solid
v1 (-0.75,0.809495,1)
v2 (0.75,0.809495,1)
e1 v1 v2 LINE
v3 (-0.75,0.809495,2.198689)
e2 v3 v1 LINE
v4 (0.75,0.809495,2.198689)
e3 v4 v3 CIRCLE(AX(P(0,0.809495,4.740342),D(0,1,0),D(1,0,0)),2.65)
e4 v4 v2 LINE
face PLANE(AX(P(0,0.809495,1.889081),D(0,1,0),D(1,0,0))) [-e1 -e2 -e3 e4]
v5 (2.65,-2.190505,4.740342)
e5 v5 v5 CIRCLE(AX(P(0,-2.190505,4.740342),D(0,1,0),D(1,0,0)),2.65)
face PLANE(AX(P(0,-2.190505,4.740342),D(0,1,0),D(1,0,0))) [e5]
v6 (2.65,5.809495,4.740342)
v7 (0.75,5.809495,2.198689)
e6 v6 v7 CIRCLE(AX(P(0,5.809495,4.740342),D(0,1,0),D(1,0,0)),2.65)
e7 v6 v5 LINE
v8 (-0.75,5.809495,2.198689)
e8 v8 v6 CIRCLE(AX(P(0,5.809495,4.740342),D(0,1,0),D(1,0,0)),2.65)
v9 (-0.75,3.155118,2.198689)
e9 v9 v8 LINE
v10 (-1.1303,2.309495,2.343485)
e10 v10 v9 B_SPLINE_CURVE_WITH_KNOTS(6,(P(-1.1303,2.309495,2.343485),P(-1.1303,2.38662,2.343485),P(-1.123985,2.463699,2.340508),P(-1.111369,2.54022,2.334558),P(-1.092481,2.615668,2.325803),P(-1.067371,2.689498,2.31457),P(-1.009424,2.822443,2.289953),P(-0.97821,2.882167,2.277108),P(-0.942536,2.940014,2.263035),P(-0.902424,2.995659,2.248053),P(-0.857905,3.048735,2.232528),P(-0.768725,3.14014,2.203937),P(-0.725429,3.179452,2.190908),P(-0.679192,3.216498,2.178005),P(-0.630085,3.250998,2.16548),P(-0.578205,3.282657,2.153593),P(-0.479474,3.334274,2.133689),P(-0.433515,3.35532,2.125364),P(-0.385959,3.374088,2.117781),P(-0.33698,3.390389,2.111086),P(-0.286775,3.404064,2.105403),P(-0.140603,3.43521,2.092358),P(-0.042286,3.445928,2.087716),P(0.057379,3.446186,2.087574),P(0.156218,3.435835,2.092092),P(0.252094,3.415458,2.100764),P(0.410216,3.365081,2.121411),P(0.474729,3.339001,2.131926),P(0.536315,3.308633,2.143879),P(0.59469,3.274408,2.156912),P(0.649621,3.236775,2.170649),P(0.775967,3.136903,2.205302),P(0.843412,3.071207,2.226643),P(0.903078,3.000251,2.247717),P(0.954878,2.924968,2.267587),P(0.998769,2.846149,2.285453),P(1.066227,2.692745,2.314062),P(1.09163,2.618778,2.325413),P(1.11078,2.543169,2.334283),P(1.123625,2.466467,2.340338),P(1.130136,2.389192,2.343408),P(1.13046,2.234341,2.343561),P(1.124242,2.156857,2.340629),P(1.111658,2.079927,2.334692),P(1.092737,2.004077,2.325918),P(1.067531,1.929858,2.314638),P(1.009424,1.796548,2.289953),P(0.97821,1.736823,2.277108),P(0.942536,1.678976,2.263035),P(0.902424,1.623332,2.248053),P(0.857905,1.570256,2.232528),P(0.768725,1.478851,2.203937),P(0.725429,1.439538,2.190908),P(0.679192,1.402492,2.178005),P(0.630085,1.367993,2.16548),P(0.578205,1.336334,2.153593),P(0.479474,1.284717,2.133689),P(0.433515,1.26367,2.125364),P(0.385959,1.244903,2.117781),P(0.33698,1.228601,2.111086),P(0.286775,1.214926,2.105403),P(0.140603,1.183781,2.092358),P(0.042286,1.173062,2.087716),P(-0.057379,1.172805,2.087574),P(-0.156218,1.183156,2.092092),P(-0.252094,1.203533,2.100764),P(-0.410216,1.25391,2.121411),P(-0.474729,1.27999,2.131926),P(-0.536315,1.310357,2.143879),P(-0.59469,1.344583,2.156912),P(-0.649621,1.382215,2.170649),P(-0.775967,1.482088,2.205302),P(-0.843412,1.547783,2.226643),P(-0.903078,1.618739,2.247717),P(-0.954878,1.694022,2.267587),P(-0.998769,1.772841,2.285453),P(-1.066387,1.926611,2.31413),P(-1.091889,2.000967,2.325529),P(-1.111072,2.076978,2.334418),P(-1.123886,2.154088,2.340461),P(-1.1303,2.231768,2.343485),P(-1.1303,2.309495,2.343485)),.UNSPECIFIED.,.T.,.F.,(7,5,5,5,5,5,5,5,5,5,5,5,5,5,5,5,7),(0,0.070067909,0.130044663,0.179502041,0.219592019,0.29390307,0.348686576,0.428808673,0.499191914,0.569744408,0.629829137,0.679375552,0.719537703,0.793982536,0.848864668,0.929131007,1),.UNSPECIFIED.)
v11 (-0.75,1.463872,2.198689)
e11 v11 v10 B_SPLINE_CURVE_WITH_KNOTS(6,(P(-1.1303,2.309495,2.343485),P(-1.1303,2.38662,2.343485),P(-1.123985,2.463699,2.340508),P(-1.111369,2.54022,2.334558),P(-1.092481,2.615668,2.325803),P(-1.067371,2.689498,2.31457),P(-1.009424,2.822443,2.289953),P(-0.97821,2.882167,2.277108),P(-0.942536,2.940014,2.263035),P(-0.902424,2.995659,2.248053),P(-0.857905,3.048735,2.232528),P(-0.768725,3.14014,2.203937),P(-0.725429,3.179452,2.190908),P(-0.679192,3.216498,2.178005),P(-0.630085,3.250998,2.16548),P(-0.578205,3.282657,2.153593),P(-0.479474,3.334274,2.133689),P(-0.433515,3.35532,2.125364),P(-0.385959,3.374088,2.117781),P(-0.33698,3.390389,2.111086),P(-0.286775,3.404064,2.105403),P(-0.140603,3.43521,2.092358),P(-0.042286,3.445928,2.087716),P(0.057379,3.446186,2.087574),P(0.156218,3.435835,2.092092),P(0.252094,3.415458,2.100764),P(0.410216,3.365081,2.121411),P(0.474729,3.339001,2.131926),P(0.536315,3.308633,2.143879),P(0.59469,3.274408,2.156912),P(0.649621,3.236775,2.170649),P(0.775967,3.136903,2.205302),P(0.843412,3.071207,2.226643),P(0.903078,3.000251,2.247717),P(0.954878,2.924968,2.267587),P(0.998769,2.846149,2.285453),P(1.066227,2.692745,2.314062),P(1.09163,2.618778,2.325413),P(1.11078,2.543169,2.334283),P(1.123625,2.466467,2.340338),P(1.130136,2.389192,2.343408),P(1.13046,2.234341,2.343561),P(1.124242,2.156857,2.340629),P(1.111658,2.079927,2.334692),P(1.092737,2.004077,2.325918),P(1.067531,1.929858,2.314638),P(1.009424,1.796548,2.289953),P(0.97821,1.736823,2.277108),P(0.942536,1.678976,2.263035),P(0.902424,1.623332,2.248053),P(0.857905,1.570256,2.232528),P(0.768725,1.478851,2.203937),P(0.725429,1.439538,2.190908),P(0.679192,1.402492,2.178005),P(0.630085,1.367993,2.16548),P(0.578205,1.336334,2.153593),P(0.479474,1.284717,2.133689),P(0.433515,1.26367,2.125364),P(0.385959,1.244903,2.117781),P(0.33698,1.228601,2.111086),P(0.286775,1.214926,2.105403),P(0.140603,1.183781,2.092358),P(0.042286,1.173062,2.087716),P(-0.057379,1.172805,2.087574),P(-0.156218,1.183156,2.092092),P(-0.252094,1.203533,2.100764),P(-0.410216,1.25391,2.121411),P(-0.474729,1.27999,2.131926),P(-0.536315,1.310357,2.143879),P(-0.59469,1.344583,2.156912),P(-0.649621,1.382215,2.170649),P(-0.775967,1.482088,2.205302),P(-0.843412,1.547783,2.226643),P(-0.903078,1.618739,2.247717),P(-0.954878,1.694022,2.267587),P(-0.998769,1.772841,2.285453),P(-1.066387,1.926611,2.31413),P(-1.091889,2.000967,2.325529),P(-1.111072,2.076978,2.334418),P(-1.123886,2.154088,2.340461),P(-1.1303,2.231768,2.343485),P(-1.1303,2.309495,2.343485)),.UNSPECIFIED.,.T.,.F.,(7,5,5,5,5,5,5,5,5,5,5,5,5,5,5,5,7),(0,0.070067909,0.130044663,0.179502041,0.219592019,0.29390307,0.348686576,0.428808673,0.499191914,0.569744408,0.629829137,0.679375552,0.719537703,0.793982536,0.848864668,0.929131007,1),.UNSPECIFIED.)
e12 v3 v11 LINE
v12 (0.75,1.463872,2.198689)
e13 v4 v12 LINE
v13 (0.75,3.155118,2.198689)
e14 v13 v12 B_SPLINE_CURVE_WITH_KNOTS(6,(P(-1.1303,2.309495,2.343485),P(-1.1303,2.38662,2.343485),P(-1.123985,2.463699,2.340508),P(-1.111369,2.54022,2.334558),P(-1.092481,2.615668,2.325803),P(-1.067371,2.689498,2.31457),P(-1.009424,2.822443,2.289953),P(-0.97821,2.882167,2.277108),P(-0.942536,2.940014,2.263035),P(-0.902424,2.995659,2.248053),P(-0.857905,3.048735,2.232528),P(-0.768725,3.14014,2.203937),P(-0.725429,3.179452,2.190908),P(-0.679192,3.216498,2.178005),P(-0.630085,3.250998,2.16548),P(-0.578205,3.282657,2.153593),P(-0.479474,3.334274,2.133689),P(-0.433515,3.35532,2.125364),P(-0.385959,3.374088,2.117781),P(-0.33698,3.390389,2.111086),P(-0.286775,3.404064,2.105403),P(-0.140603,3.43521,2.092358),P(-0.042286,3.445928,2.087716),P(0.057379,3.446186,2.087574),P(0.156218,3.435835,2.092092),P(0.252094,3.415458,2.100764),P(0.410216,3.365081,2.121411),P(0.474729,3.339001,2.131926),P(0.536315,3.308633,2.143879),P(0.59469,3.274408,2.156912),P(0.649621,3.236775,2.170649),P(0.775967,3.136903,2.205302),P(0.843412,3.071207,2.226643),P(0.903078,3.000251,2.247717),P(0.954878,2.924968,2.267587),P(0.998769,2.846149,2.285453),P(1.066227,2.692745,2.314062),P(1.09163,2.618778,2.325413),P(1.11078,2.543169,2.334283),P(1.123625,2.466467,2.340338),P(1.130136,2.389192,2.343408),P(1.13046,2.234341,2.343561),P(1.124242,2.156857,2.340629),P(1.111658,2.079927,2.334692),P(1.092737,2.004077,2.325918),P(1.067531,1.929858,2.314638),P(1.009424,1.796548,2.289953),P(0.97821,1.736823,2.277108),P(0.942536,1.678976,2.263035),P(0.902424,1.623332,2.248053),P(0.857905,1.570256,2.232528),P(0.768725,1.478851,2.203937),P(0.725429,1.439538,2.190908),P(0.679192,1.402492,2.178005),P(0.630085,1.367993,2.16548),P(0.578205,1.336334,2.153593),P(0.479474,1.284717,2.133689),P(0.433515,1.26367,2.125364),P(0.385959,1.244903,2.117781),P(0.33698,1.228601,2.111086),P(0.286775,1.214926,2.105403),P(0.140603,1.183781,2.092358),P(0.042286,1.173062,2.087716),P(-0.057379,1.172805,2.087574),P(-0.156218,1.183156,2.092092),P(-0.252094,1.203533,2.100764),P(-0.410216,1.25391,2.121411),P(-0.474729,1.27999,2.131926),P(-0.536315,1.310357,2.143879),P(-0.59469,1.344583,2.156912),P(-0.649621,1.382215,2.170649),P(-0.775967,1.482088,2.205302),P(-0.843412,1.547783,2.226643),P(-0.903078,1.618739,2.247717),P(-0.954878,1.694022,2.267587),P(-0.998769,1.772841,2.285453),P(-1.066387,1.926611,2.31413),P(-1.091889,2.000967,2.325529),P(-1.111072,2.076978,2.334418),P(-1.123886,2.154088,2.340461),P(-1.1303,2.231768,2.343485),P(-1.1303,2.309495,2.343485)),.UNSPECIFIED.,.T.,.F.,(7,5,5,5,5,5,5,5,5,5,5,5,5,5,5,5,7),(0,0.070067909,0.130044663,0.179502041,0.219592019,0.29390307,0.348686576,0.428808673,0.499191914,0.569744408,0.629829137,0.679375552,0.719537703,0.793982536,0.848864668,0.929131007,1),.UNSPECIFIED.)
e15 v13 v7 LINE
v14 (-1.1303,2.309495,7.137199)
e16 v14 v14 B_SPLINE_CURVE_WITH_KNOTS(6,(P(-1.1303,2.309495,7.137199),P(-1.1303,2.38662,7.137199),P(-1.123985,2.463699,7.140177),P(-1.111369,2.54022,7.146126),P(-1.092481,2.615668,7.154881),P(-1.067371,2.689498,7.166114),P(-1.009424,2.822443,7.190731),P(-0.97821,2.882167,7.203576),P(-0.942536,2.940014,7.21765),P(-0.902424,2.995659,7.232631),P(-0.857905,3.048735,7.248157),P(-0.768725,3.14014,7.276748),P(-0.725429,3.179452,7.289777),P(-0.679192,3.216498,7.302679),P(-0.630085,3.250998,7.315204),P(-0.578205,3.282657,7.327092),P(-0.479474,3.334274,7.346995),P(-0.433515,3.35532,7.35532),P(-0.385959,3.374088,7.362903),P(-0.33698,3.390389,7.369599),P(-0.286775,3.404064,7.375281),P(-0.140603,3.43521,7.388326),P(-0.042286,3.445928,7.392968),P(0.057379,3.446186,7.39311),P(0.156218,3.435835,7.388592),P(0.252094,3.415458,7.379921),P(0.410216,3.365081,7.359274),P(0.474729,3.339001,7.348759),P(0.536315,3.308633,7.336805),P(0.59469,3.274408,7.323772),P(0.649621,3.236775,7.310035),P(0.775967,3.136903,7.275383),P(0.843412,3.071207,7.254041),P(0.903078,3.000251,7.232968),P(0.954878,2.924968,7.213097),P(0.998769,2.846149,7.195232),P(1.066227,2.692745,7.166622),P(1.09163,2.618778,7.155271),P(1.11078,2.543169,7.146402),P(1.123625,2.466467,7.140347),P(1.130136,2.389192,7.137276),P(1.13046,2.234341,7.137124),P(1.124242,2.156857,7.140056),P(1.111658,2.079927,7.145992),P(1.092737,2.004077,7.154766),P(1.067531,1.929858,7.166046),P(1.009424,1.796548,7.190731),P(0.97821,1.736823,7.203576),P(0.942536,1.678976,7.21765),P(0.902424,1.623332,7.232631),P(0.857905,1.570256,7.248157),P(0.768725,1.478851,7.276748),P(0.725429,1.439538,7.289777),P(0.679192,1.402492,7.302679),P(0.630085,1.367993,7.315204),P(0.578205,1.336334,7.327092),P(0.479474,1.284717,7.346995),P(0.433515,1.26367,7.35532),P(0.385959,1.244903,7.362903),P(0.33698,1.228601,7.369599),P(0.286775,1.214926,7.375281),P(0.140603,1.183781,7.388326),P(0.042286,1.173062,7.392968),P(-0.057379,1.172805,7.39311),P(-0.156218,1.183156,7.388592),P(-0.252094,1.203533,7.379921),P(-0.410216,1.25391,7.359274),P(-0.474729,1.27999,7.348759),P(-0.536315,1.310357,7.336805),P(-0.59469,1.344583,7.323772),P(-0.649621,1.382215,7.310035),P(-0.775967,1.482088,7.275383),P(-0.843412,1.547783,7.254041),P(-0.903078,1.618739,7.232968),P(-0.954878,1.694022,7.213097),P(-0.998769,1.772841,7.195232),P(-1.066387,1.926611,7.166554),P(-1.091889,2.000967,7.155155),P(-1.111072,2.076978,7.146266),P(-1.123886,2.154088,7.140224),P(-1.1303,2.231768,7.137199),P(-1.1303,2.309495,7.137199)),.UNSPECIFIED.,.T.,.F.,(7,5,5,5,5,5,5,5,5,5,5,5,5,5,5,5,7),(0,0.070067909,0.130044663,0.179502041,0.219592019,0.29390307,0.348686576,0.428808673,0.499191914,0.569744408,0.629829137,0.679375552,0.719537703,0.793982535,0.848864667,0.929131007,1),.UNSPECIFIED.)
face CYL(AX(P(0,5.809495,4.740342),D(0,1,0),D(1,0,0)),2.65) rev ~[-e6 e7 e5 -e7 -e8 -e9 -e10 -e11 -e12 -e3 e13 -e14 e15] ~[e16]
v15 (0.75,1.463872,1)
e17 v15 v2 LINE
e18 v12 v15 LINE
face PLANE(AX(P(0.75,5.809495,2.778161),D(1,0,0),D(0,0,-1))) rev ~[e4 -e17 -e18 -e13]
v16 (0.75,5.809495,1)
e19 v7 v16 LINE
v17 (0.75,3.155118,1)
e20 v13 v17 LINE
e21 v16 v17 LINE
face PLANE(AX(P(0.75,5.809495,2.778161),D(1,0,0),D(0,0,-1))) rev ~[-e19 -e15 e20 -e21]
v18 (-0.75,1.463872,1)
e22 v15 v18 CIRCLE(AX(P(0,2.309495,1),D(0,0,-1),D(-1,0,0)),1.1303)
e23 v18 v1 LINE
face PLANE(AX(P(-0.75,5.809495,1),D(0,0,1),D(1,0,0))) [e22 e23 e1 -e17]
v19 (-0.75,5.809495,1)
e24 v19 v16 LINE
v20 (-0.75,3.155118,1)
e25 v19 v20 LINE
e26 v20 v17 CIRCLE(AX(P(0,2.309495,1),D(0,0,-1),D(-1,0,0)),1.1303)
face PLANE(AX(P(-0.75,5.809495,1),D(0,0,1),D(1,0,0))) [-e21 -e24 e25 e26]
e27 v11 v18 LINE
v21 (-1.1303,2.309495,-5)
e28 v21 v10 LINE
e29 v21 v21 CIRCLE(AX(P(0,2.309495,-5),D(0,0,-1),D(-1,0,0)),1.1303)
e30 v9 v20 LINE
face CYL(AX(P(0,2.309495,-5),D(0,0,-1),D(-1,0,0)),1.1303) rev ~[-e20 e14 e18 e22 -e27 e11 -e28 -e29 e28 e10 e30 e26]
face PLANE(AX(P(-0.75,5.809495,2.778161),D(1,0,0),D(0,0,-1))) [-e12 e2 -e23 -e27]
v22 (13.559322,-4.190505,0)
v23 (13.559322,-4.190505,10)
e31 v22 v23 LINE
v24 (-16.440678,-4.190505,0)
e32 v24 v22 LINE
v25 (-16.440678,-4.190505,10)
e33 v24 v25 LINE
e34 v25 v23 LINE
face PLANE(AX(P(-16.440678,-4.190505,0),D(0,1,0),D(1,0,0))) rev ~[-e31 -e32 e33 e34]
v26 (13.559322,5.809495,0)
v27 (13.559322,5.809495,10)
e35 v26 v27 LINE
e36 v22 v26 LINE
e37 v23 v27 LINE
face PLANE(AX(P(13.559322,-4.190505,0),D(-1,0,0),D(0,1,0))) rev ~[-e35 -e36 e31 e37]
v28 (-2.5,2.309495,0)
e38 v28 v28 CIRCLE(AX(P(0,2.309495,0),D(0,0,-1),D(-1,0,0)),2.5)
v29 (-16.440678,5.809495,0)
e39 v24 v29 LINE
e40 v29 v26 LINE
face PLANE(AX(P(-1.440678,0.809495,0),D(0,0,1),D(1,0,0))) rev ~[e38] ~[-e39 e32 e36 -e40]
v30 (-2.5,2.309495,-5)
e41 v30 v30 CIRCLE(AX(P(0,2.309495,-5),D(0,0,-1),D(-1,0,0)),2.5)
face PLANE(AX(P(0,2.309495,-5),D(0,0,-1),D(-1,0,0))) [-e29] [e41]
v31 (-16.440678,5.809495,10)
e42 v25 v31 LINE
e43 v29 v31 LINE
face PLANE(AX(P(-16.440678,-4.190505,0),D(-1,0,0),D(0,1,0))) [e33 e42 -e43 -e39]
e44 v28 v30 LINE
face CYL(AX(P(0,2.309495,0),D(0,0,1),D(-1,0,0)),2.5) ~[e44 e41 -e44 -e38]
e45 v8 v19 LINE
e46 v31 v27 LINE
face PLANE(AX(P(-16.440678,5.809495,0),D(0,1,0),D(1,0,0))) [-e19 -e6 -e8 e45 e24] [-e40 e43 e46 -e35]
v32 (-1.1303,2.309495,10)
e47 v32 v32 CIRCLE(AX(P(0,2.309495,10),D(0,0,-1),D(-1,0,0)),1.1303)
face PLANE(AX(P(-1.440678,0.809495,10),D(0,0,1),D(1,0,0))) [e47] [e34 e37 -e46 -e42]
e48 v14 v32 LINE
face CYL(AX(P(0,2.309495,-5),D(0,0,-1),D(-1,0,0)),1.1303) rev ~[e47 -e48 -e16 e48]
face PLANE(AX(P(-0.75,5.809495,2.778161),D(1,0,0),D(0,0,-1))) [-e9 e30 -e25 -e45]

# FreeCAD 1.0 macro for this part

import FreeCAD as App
import Part
import Sketcher

V = App.Vector
Q = App.Units.Quantity

doc = App.newDocument("Part")
params = doc.addObject("Spreadsheet::Sheet", "Params")
for row, (alias, value) in enumerate([
    ("sketch1_width", "30 mm"),
    ("sketch1_height", "10 mm"),
    ("pad1_length", "10 mm"),
    ("sketch2_diameter", "5 mm"),
    ("pad2_length", "5 mm"),
    ("sketch4_diameter", "5.3 mm"),
    ("pocket2_length", "8 mm"),
    ("sketch5_width", "1.5 mm"),
    ("pocket3_length", "5 mm"),
], start=1):
    params.set(f"A{row}", alias)
    params.set(f"B{row}", "=" + value)
    params.setAlias(f"B{row}", alias)

body = doc.addObject("PartDesign::Body", "Body")

# Sketch on XY plane
sketch1 = doc.addObject("Sketcher::SketchObject", "Sketch")
body.addObject(sketch1)
sketch1.AttachmentSupport = (doc.XY_Plane, [""])
sketch1.MapMode = "FlatFace"
sketch1.addGeometry([
    Part.LineSegment(V(-16, 6, 0), V(-16, -4, 0)),
    Part.LineSegment(V(-16, -4, 0), V(14, -4, 0)),
    Part.LineSegment(V(14, -4, 0), V(14, 6, 0)),
    Part.LineSegment(V(14, 6, 0), V(-16, 6, 0)),
], False)
sketch1.addConstraint([
    Sketcher.Constraint("Coincident", 0, 2, 1, 1),
    Sketcher.Constraint("Coincident", 1, 2, 2, 1),
    Sketcher.Constraint("Coincident", 2, 2, 3, 1),
    Sketcher.Constraint("Coincident", 3, 2, 0, 1),
    Sketcher.Constraint("Vertical", 0),
    Sketcher.Constraint("Horizontal", 1),
    Sketcher.Constraint("Vertical", 2),
    Sketcher.Constraint("Horizontal", 3),
    Sketcher.Constraint("DistanceX", 1, 1, 1, 2, Q("30 mm")),
    Sketcher.Constraint("DistanceY", 0, 2, 0, 1, Q("10 mm")),
    Sketcher.Constraint("DistanceX", 0, 2, -1, 1, Q("16.440678 mm")),
    Sketcher.Constraint("DistanceY", 0, 2, -1, 1, Q("4.190505 mm")),
])
sketch1.setExpression("Constraints[8]", "Params.sketch1_width")
sketch1.setExpression("Constraints[9]", "Params.sketch1_height")
pad1 = doc.addObject("PartDesign::Pad", "Pad")
body.addObject(pad1)
pad1.Profile = sketch1
pad1.setExpression("Length", "Params.pad1_length")

# Sketch on XY plane
sketch2 = doc.addObject("Sketcher::SketchObject", "Sketch001")
body.addObject(sketch2)
sketch2.AttachmentSupport = (doc.XY_Plane, [""])
sketch2.MapMode = "FlatFace"
sketch2.addGeometry([
    Part.Circle(V(0, 2.3, 0), V(0, 0, 1), 2.5),
    Part.Circle(V(0, 2.3, 0), V(0, 0, 1), 1.1),
], False)
sketch2.addConstraint([
    Sketcher.Constraint("Coincident", 1, 3, 0, 3),
    Sketcher.Constraint("PointOnObject", 0, 3, -2),
    Sketcher.Constraint("Diameter", 0, Q("5 mm")),
    Sketcher.Constraint("Diameter", 1, Q("2.2606 mm")),
    Sketcher.Constraint("DistanceY", -1, 1, 0, 3, Q("2.309495 mm")),
])
sketch2.setExpression("Constraints[2]", "Params.sketch2_diameter")
pad2 = doc.addObject("PartDesign::Pad", "Pad001")
body.addObject(pad2)
pad2.Profile = sketch2
pad2.setExpression("Length", "Params.pad2_length")
pad2.Reversed = True

# Sketch on XY plane
sketch3 = doc.addObject("Sketcher::SketchObject", "Sketch002")
body.addObject(sketch3)
sketch3.AttachmentSupport = (doc.XY_Plane, [""])
sketch3.MapMode = "FlatFace"
sketch3.AttachmentOffset = App.Placement(V(0, 0, -5), App.Rotation())
sketch3.addGeometry(Part.Circle(V(0, 2.3, 0), V(0, 0, 1), 1.1), False)
sketch3.addConstraint([
    Sketcher.Constraint("PointOnObject", 0, 3, -2),
    Sketcher.Constraint("Diameter", 0, Q("2.2606 mm")),
    Sketcher.Constraint("DistanceY", -1, 1, 0, 3, Q("2.309495 mm")),
])
pocket1 = doc.addObject("PartDesign::Pocket", "Pocket")
body.addObject(pocket1)
pocket1.Profile = sketch3
pocket1.Type = "ThroughAll"
pocket1.Reversed = True

# Sketch on XZ plane
sketch4 = doc.addObject("Sketcher::SketchObject", "Sketch003")
body.addObject(sketch4)
sketch4.AttachmentSupport = (doc.XZ_Plane, [""])
sketch4.MapMode = "FlatFace"
sketch4.AttachmentOffset = App.Placement(V(0, 0, -5.809495), App.Rotation())
sketch4.addGeometry(Part.Circle(V(0, 4.7, 0), V(0, 0, 1), 2.6), False)
sketch4.addConstraint([
    Sketcher.Constraint("PointOnObject", 0, 3, -2),
    Sketcher.Constraint("Diameter", 0, Q("5.3 mm")),
    Sketcher.Constraint("DistanceY", -1, 1, 0, 3, Q("4.740342 mm")),
])
sketch4.setExpression("Constraints[1]", "Params.sketch4_diameter")
pocket2 = doc.addObject("PartDesign::Pocket", "Pocket001")
body.addObject(pocket2)
pocket2.Profile = sketch4
pocket2.setExpression("Length", "Params.pocket2_length")
pocket2.Reversed = True

# Sketch on XZ plane
sketch5 = doc.addObject("Sketcher::SketchObject", "Sketch004")
body.addObject(sketch5)
sketch5.AttachmentSupport = (doc.XZ_Plane, [""])
sketch5.MapMode = "FlatFace"
sketch5.AttachmentOffset = App.Placement(V(0, 0, -5.809495), App.Rotation())
sketch5.addGeometry([
    Part.LineSegment(V(-0.8, 1, 0), V(-0.8, 2.8, 0)),
    Part.LineSegment(V(-0.8, 2.8, 0), V(0.8, 2.8, 0)),
    Part.LineSegment(V(0.8, 2.8, 0), V(0.8, 1, 0)),
    Part.LineSegment(V(0.8, 1, 0), V(-0.8, 1, 0)),
], False)
sketch5.addConstraint([
    Sketcher.Constraint("Coincident", 0, 2, 1, 1),
    Sketcher.Constraint("Coincident", 1, 2, 2, 1),
    Sketcher.Constraint("Coincident", 2, 2, 3, 1),
    Sketcher.Constraint("Coincident", 3, 2, 0, 1),
    Sketcher.Constraint("Vertical", 0),
    Sketcher.Constraint("Horizontal", 1),
    Sketcher.Constraint("Vertical", 2),
    Sketcher.Constraint("Horizontal", 3),
    Sketcher.Constraint("DistanceX", 1, 1, 1, 2, Q("1.5 mm")),
    Sketcher.Constraint("DistanceY", -1, 1, 2, 2, Q("1 mm")),
    Sketcher.Constraint("DistanceX", 0, 2, -1, 1, Q("0.75 mm")),
    Sketcher.Constraint("DistanceY", 0, 1, 0, 2, Q("1.778161 mm")),
])
sketch5.setExpression("Constraints[8]", "Params.sketch5_width")
pocket3 = doc.addObject("PartDesign::Pocket", "Pocket002")
body.addObject(pocket3)
pocket3.Profile = sketch5
pocket3.setExpression("Length", "Params.pocket3_length")
pocket3.Reversed = True

doc.recompute()
